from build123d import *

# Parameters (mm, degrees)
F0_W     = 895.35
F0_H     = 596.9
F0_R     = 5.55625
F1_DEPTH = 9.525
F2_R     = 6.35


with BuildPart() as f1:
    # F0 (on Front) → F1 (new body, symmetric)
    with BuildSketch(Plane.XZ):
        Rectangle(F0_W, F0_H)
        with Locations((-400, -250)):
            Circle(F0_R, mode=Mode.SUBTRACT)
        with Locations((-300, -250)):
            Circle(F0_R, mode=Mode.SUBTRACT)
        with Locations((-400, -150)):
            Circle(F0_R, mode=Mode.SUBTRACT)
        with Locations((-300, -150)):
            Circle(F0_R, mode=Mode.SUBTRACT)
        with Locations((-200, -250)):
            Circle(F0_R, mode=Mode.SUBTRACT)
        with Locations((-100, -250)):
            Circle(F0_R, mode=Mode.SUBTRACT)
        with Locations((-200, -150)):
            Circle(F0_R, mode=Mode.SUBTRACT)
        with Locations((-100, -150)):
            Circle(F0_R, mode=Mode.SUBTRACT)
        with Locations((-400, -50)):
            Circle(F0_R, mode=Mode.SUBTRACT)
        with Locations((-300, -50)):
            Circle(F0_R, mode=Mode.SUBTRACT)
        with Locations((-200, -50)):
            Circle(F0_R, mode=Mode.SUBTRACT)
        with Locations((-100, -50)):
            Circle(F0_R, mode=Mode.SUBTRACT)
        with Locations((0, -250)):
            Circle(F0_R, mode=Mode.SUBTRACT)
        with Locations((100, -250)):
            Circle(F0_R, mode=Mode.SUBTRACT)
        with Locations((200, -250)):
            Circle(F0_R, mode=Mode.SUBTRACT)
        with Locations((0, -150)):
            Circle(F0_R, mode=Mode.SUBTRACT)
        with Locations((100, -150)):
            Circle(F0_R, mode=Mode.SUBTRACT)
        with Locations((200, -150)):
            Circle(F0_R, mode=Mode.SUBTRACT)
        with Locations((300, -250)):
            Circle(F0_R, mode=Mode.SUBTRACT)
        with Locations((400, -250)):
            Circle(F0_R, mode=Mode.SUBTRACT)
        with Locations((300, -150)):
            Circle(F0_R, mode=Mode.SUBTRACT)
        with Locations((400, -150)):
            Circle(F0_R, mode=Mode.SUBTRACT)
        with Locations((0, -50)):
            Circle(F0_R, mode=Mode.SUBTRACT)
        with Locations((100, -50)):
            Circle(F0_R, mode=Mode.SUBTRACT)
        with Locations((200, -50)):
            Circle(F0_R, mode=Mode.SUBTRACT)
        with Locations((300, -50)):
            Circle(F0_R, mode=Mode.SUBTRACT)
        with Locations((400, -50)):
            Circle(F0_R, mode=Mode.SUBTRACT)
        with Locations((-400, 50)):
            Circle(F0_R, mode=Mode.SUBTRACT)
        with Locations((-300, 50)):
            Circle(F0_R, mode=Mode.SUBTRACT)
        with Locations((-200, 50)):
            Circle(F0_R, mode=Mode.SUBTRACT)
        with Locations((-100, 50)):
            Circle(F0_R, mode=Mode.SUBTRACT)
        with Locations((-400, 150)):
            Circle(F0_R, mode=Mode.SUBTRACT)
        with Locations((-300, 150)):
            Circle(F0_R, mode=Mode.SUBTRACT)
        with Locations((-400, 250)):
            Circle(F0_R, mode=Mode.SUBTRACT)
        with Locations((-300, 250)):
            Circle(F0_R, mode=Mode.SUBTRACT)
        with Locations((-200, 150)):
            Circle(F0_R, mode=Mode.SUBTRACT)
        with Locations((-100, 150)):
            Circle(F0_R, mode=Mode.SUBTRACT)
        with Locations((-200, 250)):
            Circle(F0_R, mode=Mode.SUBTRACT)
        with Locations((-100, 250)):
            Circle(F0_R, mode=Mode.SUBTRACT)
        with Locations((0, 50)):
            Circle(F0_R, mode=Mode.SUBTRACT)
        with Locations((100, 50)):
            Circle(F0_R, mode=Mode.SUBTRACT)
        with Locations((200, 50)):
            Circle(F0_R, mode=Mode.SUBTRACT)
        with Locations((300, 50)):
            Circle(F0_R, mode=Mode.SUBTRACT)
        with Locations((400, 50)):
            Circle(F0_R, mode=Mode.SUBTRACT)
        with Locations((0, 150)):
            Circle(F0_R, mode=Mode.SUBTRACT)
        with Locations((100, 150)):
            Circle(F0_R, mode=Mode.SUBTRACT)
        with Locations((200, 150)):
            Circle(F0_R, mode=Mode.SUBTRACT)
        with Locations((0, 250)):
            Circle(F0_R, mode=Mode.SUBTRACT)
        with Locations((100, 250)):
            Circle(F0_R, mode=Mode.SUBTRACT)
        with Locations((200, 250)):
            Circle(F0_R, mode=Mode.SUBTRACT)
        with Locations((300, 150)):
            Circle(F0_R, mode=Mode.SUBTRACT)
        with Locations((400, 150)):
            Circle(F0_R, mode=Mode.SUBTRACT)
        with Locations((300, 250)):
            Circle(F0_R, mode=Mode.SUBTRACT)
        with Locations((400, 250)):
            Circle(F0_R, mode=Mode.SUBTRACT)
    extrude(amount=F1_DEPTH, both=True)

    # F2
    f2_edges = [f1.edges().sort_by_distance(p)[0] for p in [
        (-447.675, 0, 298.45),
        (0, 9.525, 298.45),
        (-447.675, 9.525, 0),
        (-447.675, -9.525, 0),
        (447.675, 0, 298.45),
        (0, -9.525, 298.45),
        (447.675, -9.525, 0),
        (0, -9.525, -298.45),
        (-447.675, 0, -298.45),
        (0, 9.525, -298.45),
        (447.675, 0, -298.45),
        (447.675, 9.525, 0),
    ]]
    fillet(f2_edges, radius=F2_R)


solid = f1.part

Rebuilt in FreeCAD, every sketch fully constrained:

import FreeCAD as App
import Part
import Sketcher
from FreeCAD import Vector
Q = App.Units.Quantity


def edges_at(feature, points):
    """Names of the edges that pass closest to the given points."""
    edges = feature.Shape.Edges
    near = lambda p: min(range(len(edges)), key=lambda i: edges[i].distToShape(Part.Vertex(*p))[0])
    return sorted({f"Edge{near(p) + 1}" for p in points})


def add_polygon(sketch, points):
    """Adds a closed chain of lines whose ends are joined by coincident constraints."""
    first, n = sketch.GeometryCount, len(points)
    for a, b in zip(points, points[1:] + points[:1]):
        sketch.addGeometry(Part.LineSegment(App.Vector(*a, 0), App.Vector(*b, 0)), False)
    for i in range(n):
        sketch.addConstraint(Sketcher.Constraint("Coincident", first + i, 2, first + (i + 1) % n, 1))

doc = App.newDocument("Part")
body = doc.addObject("PartDesign::Body", "Body")

sketch1 = doc.addObject("Sketcher::SketchObject", "Sketch")
body.addObject(sketch1)
sketch1.AttachmentSupport = (doc.XZ_Plane, [""])
sketch1.MapMode = "FlatFace"
add_polygon(sketch1, [(-448, 298), (-448, -298), (448, -298), (448, 298)])
sketch1.addGeometry(Part.Circle(Vector(-400, -250, 0), Vector(0, 0, 1), 6), False)
sketch1.addGeometry(Part.Circle(Vector(-300, -250, 0), Vector(0, 0, 1), 6), False)
sketch1.addGeometry(Part.Circle(Vector(-400, -150, 0), Vector(0, 0, 1), 6), False)
sketch1.addGeometry(Part.Circle(Vector(-300, -150, 0), Vector(0, 0, 1), 6), False)
sketch1.addGeometry(Part.Circle(Vector(-200, -250, 0), Vector(0, 0, 1), 6), False)
sketch1.addGeometry(Part.Circle(Vector(-100, -250, 0), Vector(0, 0, 1), 6), False)
sketch1.addGeometry(Part.Circle(Vector(-200, -150, 0), Vector(0, 0, 1), 6), False)
sketch1.addGeometry(Part.Circle(Vector(-100, -150, 0), Vector(0, 0, 1), 6), False)
sketch1.addGeometry(Part.Circle(Vector(-400, -50, 0), Vector(0, 0, 1), 6), False)
sketch1.addGeometry(Part.Circle(Vector(-300, -50, 0), Vector(0, 0, 1), 6), False)
sketch1.addGeometry(Part.Circle(Vector(-200, -50, 0), Vector(0, 0, 1), 6), False)
sketch1.addGeometry(Part.Circle(Vector(-100, -50, 0), Vector(0, 0, 1), 6), False)
sketch1.addGeometry(Part.Circle(Vector(0, -250, 0), Vector(0, 0, 1), 6), False)
sketch1.addGeometry(Part.Circle(Vector(100, -250, 0), Vector(0, 0, 1), 6), False)
sketch1.addGeometry(Part.Circle(Vector(200, -250, 0), Vector(0, 0, 1), 6), False)
sketch1.addGeometry(Part.Circle(Vector(0, -150, 0), Vector(0, 0, 1), 6), False)
sketch1.addGeometry(Part.Circle(Vector(100, -150, 0), Vector(0, 0, 1), 6), False)
sketch1.addGeometry(Part.Circle(Vector(200, -150, 0), Vector(0, 0, 1), 6), False)
sketch1.addGeometry(Part.Circle(Vector(300, -250, 0), Vector(0, 0, 1), 6), False)
sketch1.addGeometry(Part.Circle(Vector(400, -250, 0), Vector(0, 0, 1), 6), False)
sketch1.addGeometry(Part.Circle(Vector(300, -150, 0), Vector(0, 0, 1), 6), False)
sketch1.addGeometry(Part.Circle(Vector(400, -150, 0), Vector(0, 0, 1), 6), False)
sketch1.addGeometry(Part.Circle(Vector(0, -50, 0), Vector(0, 0, 1), 6), False)
sketch1.addGeometry(Part.Circle(Vector(100, -50, 0), Vector(0, 0, 1), 6), False)
sketch1.addGeometry(Part.Circle(Vector(200, -50, 0), Vector(0, 0, 1), 6), False)
sketch1.addGeometry(Part.Circle(Vector(300, -50, 0), Vector(0, 0, 1), 6), False)
sketch1.addGeometry(Part.Circle(Vector(400, -50, 0), Vector(0, 0, 1), 6), False)
sketch1.addGeometry(Part.Circle(Vector(-400, 50, 0), Vector(0, 0, 1), 6), False)
sketch1.addGeometry(Part.Circle(Vector(-300, 50, 0), Vector(0, 0, 1), 6), False)
sketch1.addGeometry(Part.Circle(Vector(-200, 50, 0), Vector(0, 0, 1), 6), False)
sketch1.addGeometry(Part.Circle(Vector(-100, 50, 0), Vector(0, 0, 1), 6), False)
sketch1.addGeometry(Part.Circle(Vector(-400, 150, 0), Vector(0, 0, 1), 6), False)
sketch1.addGeometry(Part.Circle(Vector(-300, 150, 0), Vector(0, 0, 1), 6), False)
sketch1.addGeometry(Part.Circle(Vector(-400, 250, 0), Vector(0, 0, 1), 6), False)
sketch1.addGeometry(Part.Circle(Vector(-300, 250, 0), Vector(0, 0, 1), 6), False)
sketch1.addGeometry(Part.Circle(Vector(-200, 150, 0), Vector(0, 0, 1), 6), False)
sketch1.addGeometry(Part.Circle(Vector(-100, 150, 0), Vector(0, 0, 1), 6), False)
sketch1.addGeometry(Part.Circle(Vector(-200, 250, 0), Vector(0, 0, 1), 6), False)
sketch1.addGeometry(Part.Circle(Vector(-100, 250, 0), Vector(0, 0, 1), 6), False)
sketch1.addGeometry(Part.Circle(Vector(0, 50, 0), Vector(0, 0, 1), 6), False)
sketch1.addGeometry(Part.Circle(Vector(100, 50, 0), Vector(0, 0, 1), 6), False)
sketch1.addGeometry(Part.Circle(Vector(200, 50, 0), Vector(0, 0, 1), 6), False)
sketch1.addGeometry(Part.Circle(Vector(300, 50, 0), Vector(0, 0, 1), 6), False)
sketch1.addGeometry(Part.Circle(Vector(400, 50, 0), Vector(0, 0, 1), 6), False)
sketch1.addGeometry(Part.Circle(Vector(0, 150, 0), Vector(0, 0, 1), 6), False)
sketch1.addGeometry(Part.Circle(Vector(100, 150, 0), Vector(0, 0, 1), 6), False)
sketch1.addGeometry(Part.Circle(Vector(200, 150, 0), Vector(0, 0, 1), 6), False)
sketch1.addGeometry(Part.Circle(Vector(0, 250, 0), Vector(0, 0, 1), 6), False)
sketch1.addGeometry(Part.Circle(Vector(100, 250, 0), Vector(0, 0, 1), 6), False)
sketch1.addGeometry(Part.Circle(Vector(200, 250, 0), Vector(0, 0, 1), 6), False)
sketch1.addGeometry(Part.Circle(Vector(300, 150, 0), Vector(0, 0, 1), 6), False)
sketch1.addGeometry(Part.Circle(Vector(400, 150, 0), Vector(0, 0, 1), 6), False)
sketch1.addGeometry(Part.Circle(Vector(300, 250, 0), Vector(0, 0, 1), 6), False)
sketch1.addGeometry(Part.Circle(Vector(400, 250, 0), Vector(0, 0, 1), 6), False)
sketch1.addConstraint([
    Sketcher.Constraint("Vertical", 0),
    Sketcher.Constraint("Horizontal", 1),
    Sketcher.Constraint("Vertical", 2),
    Sketcher.Constraint("Horizontal", 3),
    Sketcher.Constraint("Equal", 4, 5),
    Sketcher.Constraint("Equal", 5, 6),
    Sketcher.Constraint("Equal", 6, 7),
    Sketcher.Constraint("Equal", 7, 8),
    Sketcher.Constraint("Equal", 8, 9),
    Sketcher.Constraint("Equal", 9, 10),
    Sketcher.Constraint("Equal", 10, 11),
    Sketcher.Constraint("Equal", 11, 12),
    Sketcher.Constraint("Equal", 12, 13),
    Sketcher.Constraint("Equal", 13, 14),
    Sketcher.Constraint("Equal", 14, 15),
    Sketcher.Constraint("Equal", 15, 16),
    Sketcher.Constraint("Equal", 16, 17),
    Sketcher.Constraint("Equal", 17, 18),
    Sketcher.Constraint("Equal", 18, 19),
    Sketcher.Constraint("Equal", 19, 20),
    Sketcher.Constraint("Equal", 20, 21),
    Sketcher.Constraint("Equal", 21, 22),
    Sketcher.Constraint("Equal", 22, 23),
    Sketcher.Constraint("Equal", 23, 24),
    Sketcher.Constraint("Equal", 24, 25),
    Sketcher.Constraint("Equal", 25, 26),
    Sketcher.Constraint("Equal", 26, 27),
    Sketcher.Constraint("Equal", 27, 28),
    Sketcher.Constraint("Equal", 28, 29),
    Sketcher.Constraint("Equal", 29, 30),
    Sketcher.Constraint("Equal", 30, 31),
    Sketcher.Constraint("Equal", 31, 32),
    Sketcher.Constraint("Equal", 32, 33),
    Sketcher.Constraint("Equal", 33, 34),
    Sketcher.Constraint("Equal", 34, 35),
    Sketcher.Constraint("Equal", 35, 36),
    Sketcher.Constraint("Equal", 36, 37),
    Sketcher.Constraint("Equal", 37, 38),
    Sketcher.Constraint("Equal", 38, 39),
    Sketcher.Constraint("Equal", 39, 40),
    Sketcher.Constraint("Equal", 40, 41),
    Sketcher.Constraint("Equal", 41, 42),
    Sketcher.Constraint("Equal", 42, 43),
    Sketcher.Constraint("Equal", 43, 44),
    Sketcher.Constraint("Equal", 44, 45),
    Sketcher.Constraint("Equal", 45, 46),
    Sketcher.Constraint("Equal", 46, 47),
    Sketcher.Constraint("Equal", 47, 48),
    Sketcher.Constraint("Equal", 48, 49),
    Sketcher.Constraint("Equal", 49, 50),
    Sketcher.Constraint("Equal", 50, 51),
    Sketcher.Constraint("Equal", 51, 52),
    Sketcher.Constraint("Equal", 52, 53),
    Sketcher.Constraint("Equal", 53, 54),
    Sketcher.Constraint("Equal", 54, 55),
    Sketcher.Constraint("Equal", 55, 56),
    Sketcher.Constraint("Equal", 56, 57),
    Sketcher.Constraint("Symmetric", 30, 3, 31, 3, -1, 1),
    Sketcher.Constraint("Symmetric", 29, 3, 32, 3, -1, 1),
    Sketcher.Constraint("Symmetric", 28, 3, 33, 3, -1, 1),
    Sketcher.Constraint("Symmetric", 27, 3, 34, 3, -1, 1),
    Sketcher.Constraint("Symmetric", 25, 3, 35, 3, -1, 1),
    Sketcher.Constraint("Symmetric", 24, 3, 36, 3, -1, 1),
    Sketcher.Constraint("Symmetric", 23, 3, 37, 3, -1, 1),
    Sketcher.Constraint("Symmetric", 22, 3, 38, 3, -1, 1),
    Sketcher.Constraint("Symmetric", 21, 3, 39, 3, -1, 1),
    Sketcher.Constraint("Symmetric", 20, 3, 40, 3, -1, 1),
    Sketcher.Constraint("Symmetric", 18, 3, 41, 3, -1, 1),
    Sketcher.Constraint("Symmetric", 17, 3, 42, 3, -1, 1),
    Sketcher.Constraint("Symmetric", 26, 3, 43, 3, -1, 1),
    Sketcher.Constraint("Symmetric", 15, 3, 44, 3, -1, 1),
    Sketcher.Constraint("Symmetric", 14, 3, 45, 3, -1, 1),
    Sketcher.Constraint("Symmetric", 13, 3, 46, 3, -1, 1),
    Sketcher.Constraint("Symmetric", 12, 3, 47, 3, -1, 1),
    Sketcher.Constraint("Symmetric", 19, 3, 48, 3, -1, 1),
    Sketcher.Constraint("Symmetric", 11, 3, 49, 3, -1, 1),
    Sketcher.Constraint("Symmetric", 10, 3, 50, 3, -1, 1),
    Sketcher.Constraint("Symmetric", 16, 3, 51, 3, -1, 1),
    Sketcher.Constraint("Symmetric", 9, 3, 52, 3, -1, 1),
    Sketcher.Constraint("Symmetric", 8, 3, 53, 3, -1, 1),
    Sketcher.Constraint("Symmetric", 7, 3, 54, 3, -1, 1),
    Sketcher.Constraint("Symmetric", 6, 3, 55, 3, -1, 1),
    Sketcher.Constraint("Symmetric", 5, 3, 56, 3, -1, 1),
    Sketcher.Constraint("Symmetric", 4, 3, 57, 3, -1, 1),
    Sketcher.Constraint("Symmetric", 0, 2, 2, 2, -1, 1),
    Sketcher.Constraint("Symmetric", 9, 3, 17, 3, -2),
    Sketcher.Constraint("Symmetric", 8, 3, 18, 3, -2),
    Sketcher.Constraint("Symmetric", 11, 3, 20, 3, -2),
    Sketcher.Constraint("Symmetric", 10, 3, 21, 3, -2),
    Sketcher.Constraint("Symmetric", 5, 3, 22, 3, -2),
    Sketcher.Constraint("Symmetric", 4, 3, 23, 3, -2),
    Sketcher.Constraint("Symmetric", 7, 3, 24, 3, -2),
    Sketcher.Constraint("Symmetric", 6, 3, 25, 3, -2),
    Sketcher.Constraint("Symmetric", 15, 3, 27, 3, -2),
    Sketcher.Constraint("Symmetric", 14, 3, 28, 3, -2),
    Sketcher.Constraint("Symmetric", 13, 3, 29, 3, -2),
    Sketcher.Constraint("Symmetric", 12, 3, 30, 3, -2),
    Sketcher.Constraint("PointOnObject", 16, 3, -2),
    Sketcher.Constraint("PointOnObject", 19, 3, -2),
    Sketcher.Constraint("PointOnObject", 26, 3, -2),
    Sketcher.Constraint("Horizontal", 4, 3, 5, 3),
    Sketcher.Constraint("Horizontal", 6, 3, 7, 3),
    Sketcher.Constraint("Horizontal", 5, 3, 8, 3),
    Sketcher.Constraint("Horizontal", 8, 3, 9, 3),
    Sketcher.Constraint("Horizontal", 7, 3, 10, 3),
    Sketcher.Constraint("Horizontal", 10, 3, 11, 3),
    Sketcher.Constraint("Horizontal", 12, 3, 13, 3),
    Sketcher.Constraint("Horizontal", 13, 3, 14, 3),
    Sketcher.Constraint("Horizontal", 14, 3, 15, 3),
    Sketcher.Constraint("Horizontal", 9, 3, 16, 3),
    Sketcher.Constraint("Horizontal", 11, 3, 19, 3),
    Sketcher.Constraint("Horizontal", 15, 3, 26, 3),
    Sketcher.Constraint("Vertical", 4, 3, 6, 3),
    Sketcher.Constraint("Vertical", 5, 3, 7, 3),
    Sketcher.Constraint("Vertical", 8, 3, 10, 3),
    Sketcher.Constraint("Vertical", 9, 3, 11, 3),
    Sketcher.Constraint("Vertical", 6, 3, 12, 3),
    Sketcher.Constraint("Vertical", 7, 3, 13, 3),
    Sketcher.Constraint("Vertical", 10, 3, 14, 3),
    Sketcher.Constraint("Vertical", 11, 3, 15, 3),
    Sketcher.Constraint("Diameter", 4, Q("0.4375 in")),
    Sketcher.Constraint("DistanceY", 0, 2, 0, 1, Q("23.5 in")),
    Sketcher.Constraint("DistanceX", 1, 1, 1, 2, Q("35.25 in")),
    Sketcher.Constraint("DistanceX", 4, 3, -1, 1, 400.0),
    Sketcher.Constraint("DistanceY", 4, 3, -1, 1, 250.0),
    Sketcher.Constraint("DistanceX", 5, 3, -1, 1, 300.0),
    Sketcher.Constraint("DistanceY", 6, 3, -1, 1, 150.0),
    Sketcher.Constraint("DistanceX", 8, 3, -1, 1, 200.0),
    Sketcher.Constraint("DistanceX", 9, 3, -1, 1, 100.0),
    Sketcher.Constraint("DistanceY", 12, 3, -1, 1, 50.0),
])
pad1 = doc.addObject("PartDesign::Pad", "Pad")
body.addObject(pad1)
pad1.Profile = sketch1
pad1.Length = Q("0.75 in")
pad1.Midplane = True
doc.recompute()

fillet = doc.addObject("PartDesign::Fillet", "Fillet")
body.addObject(fillet)
fillet.Base = (pad1, edges_at(pad1, [
    (-447.675, 0, 298.45),
    (0, 9.525, 298.45),
    (-447.675, 9.525, 0),
    (-447.675, -9.525, 0),
    (447.675, 0, 298.45),
    (0, -9.525, 298.45),
    (447.675, -9.525, 0),
    (0, -9.525, -298.45),
    (-447.675, 0, -298.45),
    (0, 9.525, -298.45),
    (447.675, 0, -298.45),
    (447.675, 9.525, 0),
]))
fillet.Radius = Q("0.25 in")

doc.recompute()
